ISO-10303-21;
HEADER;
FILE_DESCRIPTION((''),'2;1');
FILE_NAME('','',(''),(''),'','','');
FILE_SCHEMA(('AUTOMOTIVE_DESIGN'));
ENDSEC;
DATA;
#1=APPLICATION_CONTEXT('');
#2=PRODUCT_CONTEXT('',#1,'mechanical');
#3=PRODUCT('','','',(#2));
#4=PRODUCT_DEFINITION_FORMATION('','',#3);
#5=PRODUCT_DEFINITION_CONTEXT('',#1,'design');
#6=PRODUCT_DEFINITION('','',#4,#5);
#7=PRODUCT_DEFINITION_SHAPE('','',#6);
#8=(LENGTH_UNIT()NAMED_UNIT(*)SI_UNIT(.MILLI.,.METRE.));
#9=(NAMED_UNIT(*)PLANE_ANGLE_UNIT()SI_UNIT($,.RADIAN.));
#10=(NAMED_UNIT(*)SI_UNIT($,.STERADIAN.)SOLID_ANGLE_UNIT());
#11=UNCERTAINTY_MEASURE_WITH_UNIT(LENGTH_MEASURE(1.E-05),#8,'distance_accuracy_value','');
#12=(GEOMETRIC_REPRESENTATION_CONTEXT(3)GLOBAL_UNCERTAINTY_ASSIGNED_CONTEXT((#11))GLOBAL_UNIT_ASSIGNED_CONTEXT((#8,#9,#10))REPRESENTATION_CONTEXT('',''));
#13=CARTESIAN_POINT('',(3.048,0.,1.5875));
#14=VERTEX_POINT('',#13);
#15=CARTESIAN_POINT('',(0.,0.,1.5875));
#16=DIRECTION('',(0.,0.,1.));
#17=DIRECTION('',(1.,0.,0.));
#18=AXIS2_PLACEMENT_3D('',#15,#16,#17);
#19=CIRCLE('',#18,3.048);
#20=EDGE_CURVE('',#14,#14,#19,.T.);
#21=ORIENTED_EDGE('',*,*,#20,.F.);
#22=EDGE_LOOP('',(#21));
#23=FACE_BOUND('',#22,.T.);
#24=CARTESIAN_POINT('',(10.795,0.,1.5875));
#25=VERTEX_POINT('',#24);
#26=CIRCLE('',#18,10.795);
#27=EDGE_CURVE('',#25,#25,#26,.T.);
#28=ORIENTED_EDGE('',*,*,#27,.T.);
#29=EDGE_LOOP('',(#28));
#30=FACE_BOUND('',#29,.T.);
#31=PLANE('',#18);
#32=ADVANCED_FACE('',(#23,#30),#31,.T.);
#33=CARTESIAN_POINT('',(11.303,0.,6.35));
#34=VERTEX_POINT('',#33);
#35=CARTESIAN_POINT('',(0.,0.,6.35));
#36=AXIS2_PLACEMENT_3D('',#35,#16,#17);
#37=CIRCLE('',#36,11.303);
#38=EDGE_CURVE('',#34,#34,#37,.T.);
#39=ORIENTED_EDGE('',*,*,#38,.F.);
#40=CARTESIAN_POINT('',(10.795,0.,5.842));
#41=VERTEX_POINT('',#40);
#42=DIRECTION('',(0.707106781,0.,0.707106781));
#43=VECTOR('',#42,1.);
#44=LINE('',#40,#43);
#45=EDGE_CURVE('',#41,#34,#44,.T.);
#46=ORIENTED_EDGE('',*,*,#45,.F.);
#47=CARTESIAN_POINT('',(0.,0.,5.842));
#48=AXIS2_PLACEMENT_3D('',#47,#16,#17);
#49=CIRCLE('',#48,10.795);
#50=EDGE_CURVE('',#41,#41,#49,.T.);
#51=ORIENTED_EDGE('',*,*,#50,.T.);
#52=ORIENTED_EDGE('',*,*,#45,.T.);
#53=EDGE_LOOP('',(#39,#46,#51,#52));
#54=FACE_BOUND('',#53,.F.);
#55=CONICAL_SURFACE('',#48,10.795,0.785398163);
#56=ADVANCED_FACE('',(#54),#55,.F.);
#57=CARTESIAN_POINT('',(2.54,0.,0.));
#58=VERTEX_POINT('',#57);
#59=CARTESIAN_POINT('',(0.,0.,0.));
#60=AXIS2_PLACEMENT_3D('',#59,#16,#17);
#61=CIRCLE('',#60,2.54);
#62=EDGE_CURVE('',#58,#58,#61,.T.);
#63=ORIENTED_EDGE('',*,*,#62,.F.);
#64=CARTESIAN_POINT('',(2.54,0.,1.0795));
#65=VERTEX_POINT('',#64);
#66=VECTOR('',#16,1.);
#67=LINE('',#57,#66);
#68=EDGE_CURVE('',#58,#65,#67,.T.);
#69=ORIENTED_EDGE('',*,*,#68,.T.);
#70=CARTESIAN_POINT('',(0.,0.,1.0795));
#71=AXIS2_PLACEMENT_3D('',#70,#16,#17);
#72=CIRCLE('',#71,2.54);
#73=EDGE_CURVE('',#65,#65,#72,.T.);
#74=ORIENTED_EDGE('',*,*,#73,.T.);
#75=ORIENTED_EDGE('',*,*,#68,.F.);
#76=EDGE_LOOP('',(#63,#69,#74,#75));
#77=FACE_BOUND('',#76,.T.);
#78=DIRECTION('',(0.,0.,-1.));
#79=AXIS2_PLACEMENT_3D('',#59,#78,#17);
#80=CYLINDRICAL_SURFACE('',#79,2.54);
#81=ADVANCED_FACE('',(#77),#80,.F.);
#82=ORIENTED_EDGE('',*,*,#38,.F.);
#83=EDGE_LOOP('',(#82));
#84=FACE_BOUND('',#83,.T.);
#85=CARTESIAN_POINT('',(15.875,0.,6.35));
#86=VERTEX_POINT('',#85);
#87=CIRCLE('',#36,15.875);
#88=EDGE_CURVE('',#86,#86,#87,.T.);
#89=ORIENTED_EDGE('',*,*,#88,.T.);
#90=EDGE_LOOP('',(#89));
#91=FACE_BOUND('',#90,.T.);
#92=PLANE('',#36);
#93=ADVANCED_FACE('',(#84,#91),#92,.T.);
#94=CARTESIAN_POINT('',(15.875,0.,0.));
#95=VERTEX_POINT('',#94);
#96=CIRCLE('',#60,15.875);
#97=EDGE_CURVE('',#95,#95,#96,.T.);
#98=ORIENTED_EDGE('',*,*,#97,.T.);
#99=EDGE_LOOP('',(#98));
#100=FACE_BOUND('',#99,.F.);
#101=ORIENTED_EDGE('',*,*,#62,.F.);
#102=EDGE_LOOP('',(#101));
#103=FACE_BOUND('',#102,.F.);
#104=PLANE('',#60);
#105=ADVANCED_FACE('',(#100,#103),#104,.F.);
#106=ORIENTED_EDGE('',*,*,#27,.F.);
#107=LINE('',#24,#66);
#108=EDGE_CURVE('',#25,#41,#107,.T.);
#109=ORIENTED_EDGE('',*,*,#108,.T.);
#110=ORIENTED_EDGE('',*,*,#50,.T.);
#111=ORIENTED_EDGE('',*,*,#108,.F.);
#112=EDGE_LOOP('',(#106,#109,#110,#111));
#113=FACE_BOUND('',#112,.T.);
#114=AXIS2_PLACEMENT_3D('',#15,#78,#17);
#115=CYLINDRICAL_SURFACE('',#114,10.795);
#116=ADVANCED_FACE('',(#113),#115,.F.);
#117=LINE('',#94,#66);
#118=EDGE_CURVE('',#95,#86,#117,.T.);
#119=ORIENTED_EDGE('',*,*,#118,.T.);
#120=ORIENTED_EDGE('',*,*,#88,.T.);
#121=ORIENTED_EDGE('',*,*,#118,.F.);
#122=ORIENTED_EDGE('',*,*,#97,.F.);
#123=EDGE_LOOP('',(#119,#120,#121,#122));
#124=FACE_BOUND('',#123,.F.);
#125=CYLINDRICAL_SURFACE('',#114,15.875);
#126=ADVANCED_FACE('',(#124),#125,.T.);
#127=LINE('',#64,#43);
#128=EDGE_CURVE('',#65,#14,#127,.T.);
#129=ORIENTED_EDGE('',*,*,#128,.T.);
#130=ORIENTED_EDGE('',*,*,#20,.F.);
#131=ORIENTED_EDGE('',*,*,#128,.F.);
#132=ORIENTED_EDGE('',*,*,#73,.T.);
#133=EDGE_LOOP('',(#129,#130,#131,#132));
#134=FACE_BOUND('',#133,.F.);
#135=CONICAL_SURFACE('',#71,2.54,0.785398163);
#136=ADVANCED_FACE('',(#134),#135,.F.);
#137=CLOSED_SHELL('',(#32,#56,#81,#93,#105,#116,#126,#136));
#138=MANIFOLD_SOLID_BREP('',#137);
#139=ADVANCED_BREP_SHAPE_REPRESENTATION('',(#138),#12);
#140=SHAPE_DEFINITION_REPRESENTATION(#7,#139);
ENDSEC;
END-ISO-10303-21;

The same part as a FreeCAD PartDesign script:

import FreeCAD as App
import Part
import Sketcher
from FreeCAD import Vector
Q = App.Units.Quantity


def edges_at(feature, points):
    """Names of the edges that pass closest to the given points."""
    edges = feature.Shape.Edges
    near = lambda p: min(range(len(edges)), key=lambda i: edges[i].distToShape(Part.Vertex(*p))[0])
    return sorted({f"Edge{near(p) + 1}" for p in points})

doc = App.newDocument("Part")
params = doc.addObject("Spreadsheet::Sheet", "Params")
for row, (alias, value) in enumerate([
    ("sketch1_diameter", "0.2 in"),
    ("sketch1_diameter2", "1.25 in"),
    ("pad1_length", "0.0625 in"),
    ("sketch2_diameter", "1.25 in"),
    ("sketch2_diameter2", "0.85 in"),
    ("pad2_length", "0.1875 in"),
    ("chamfer_size", "0.02 in"),
], start=1):
    params.set(f"A{row}", alias)
    params.set(f"B{row}", "=" + value)
    params.setAlias(f"B{row}", alias)

body = doc.addObject("PartDesign::Body", "Body")

# Sketch on XY plane
sketch1 = body.newObject("Sketcher::SketchObject", "Sketch")
sketch1.AttachmentSupport = (doc.getObject("XY_Plane"), [""])
sketch1.MapMode = "FlatFace"
sketch1.addGeometry([
    Part.Circle(Vector(0, 0, 0), Vector(0, 0, 1), 15.9),
    Part.Circle(Vector(0, 0, 0), Vector(0, 0, 1), 2.5),
], False)
sketch1.addConstraint([
    Sketcher.Constraint("Coincident", 0, 3, -1, 1),
    Sketcher.Constraint("Coincident", 1, 3, -1, 1),
    Sketcher.Constraint("Diameter", 1, Q("0.2 in")),
    Sketcher.Constraint("Diameter", 0, Q("1.25 in")),
])
sketch1.setExpression("Constraints[2]", "Params.sketch1_diameter")
sketch1.setExpression("Constraints[3]", "Params.sketch1_diameter2")
pad1 = body.newObject("PartDesign::Pad", "Pad")
pad1.Profile = sketch1
pad1.setExpression("Length", "Params.pad1_length")

# Sketch on XY plane
sketch2 = body.newObject("Sketcher::SketchObject", "Sketch001")
sketch2.AttachmentSupport = (doc.getObject("XY_Plane"), [""])
sketch2.MapMode = "FlatFace"
sketch2.AttachmentOffset = App.Placement(Vector(0, 0, 0.0625 * 25.4), App.Rotation())
sketch2.addGeometry([
    Part.Circle(Vector(0, 0, 0), Vector(0, 0, 1), 16),
    Part.Circle(Vector(0, 0, 0), Vector(0, 0, 1), 11),
], False)
sketch2.addConstraint([
    Sketcher.Constraint("Coincident", 0, 3, -1, 1),
    Sketcher.Constraint("Coincident", 1, 3, -1, 1),
    Sketcher.Constraint("Diameter", 0, Q("1.25 in")),
    Sketcher.Constraint("Diameter", 1, Q("0.85 in")),
])
sketch2.setExpression("Constraints[2]", "Params.sketch2_diameter")
sketch2.setExpression("Constraints[3]", "Params.sketch2_diameter2")
pad2 = body.newObject("PartDesign::Pad", "Pad001")
pad2.Profile = sketch2
pad2.setExpression("Length", "Params.pad2_length")
doc.recompute()

chamfer = body.newObject("PartDesign::Chamfer", "Chamfer")
chamfer.Base = (pad2, edges_at(pad2, [(-10.795, 0, 6.35), (-2.54, 0, 1.587)]))
chamfer.setExpression("Size", "Params.chamfer_size")

doc.recompute()
